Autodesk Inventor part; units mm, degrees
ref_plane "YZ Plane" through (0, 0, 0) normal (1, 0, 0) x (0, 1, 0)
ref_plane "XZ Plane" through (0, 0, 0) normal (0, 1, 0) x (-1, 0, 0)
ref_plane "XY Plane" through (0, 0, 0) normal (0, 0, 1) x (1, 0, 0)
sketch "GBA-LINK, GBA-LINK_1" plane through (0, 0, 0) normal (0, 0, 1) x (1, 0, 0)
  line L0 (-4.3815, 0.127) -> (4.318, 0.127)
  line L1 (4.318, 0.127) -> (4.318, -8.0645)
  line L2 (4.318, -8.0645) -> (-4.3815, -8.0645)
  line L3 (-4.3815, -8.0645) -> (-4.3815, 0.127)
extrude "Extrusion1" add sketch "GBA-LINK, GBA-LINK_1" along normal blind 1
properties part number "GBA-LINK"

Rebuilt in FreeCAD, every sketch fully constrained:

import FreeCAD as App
import Part
import Sketcher
Q = App.Units.Quantity


def add_polygon(sketch, points):
    """Adds a closed chain of lines whose ends are joined by coincident constraints."""
    first, n = sketch.GeometryCount, len(points)
    for a, b in zip(points, points[1:] + points[:1]):
        sketch.addGeometry(Part.LineSegment(App.Vector(*a, 0), App.Vector(*b, 0)), False)
    for i in range(n):
        sketch.addConstraint(Sketcher.Constraint("Coincident", first + i, 2, first + (i + 1) % n, 1))

doc = App.newDocument("Part")
params = doc.addObject("Spreadsheet::Sheet", "Params")
for row, (alias, value) in enumerate([
    ("pad1_length", "1 mm"),
], start=1):
    params.set(f"A{row}", alias)
    params.set(f"B{row}", "=" + value)
    params.setAlias(f"B{row}", alias)

body = doc.addObject("PartDesign::Body", "Body")

sketch1 = doc.addObject("Sketcher::SketchObject", "Sketch")
body.addObject(sketch1)
sketch1.AttachmentSupport = (doc.XY_Plane, [""])
sketch1.MapMode = "FlatFace"
add_polygon(sketch1, [(4, 0), (-4, 0), (-4, -8), (4, -8)])
sketch1.addConstraint(Sketcher.Constraint("Horizontal", 0))
sketch1.addConstraint(Sketcher.Constraint("Vertical", 1))
sketch1.addConstraint(Sketcher.Constraint("Horizontal", 2))
sketch1.addConstraint(Sketcher.Constraint("Vertical", 3))
sketch1.addConstraint(Sketcher.Constraint("DistanceX", 0, 2, 0, 1, Q("8.6995 mm")))
sketch1.addConstraint(Sketcher.Constraint("DistanceY", 1, 2, 1, 1, Q("8.1915 mm")))
sketch1.addConstraint(Sketcher.Constraint("DistanceY", -1, 1, 0, 2, Q("0.127 mm")))
sketch1.addConstraint(Sketcher.Constraint("DistanceX", -1, 1, 2, 2, Q("4.318 mm")))
pad1 = doc.addObject("PartDesign::Pad", "Pad")
body.addObject(pad1)
pad1.Profile = sketch1
pad1.setExpression("Length", "Params.pad1_length")

doc.recompute()
